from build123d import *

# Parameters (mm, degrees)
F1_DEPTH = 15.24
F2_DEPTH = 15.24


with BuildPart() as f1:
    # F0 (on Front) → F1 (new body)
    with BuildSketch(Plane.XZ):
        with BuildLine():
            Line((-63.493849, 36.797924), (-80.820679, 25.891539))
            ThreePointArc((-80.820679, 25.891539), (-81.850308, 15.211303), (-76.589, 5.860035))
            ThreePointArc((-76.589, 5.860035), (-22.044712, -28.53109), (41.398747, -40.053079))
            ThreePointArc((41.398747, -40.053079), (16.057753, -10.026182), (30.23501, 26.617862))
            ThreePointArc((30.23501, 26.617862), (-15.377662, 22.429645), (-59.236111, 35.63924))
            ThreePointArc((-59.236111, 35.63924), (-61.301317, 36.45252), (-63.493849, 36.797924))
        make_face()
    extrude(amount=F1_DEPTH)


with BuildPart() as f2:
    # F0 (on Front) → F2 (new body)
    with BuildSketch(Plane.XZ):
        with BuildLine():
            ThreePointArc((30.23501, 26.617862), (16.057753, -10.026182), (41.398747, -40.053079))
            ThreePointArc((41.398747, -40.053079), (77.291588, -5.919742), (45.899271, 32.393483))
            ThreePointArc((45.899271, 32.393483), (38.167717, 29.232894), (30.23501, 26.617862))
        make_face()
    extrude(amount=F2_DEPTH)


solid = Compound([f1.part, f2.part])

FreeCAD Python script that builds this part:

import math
import FreeCAD as App
import Part
import Sketcher

V = App.Vector
Q = App.Units.Quantity

doc = App.newDocument("Part")
body = doc.addObject("PartDesign::Body", "Body")

# Sketch on XZ plane
sketch1 = body.newObject("Sketcher::SketchObject", "Sketch")
sketch1.AttachmentSupport = (doc.getObject("XZ_Plane"), [""])
sketch1.MapMode = "FlatFace"
sketch1.addGeometry(Part.LineSegment(V(-63.5, 36.8, 0), V(-80.8, 25.9, 0)), False)
sketch1.addGeometry(Part.ArcOfCircle(Part.Circle(V(-64.3, 18.9, 0), V(0, 0, 1), 17.9), math.radians(157), math.radians(227)), False)
sketch1.addGeometry(Part.ArcOfCircle(Part.Circle(V(39.4, 129.4, 0), V(0, 0, 1), 169.4), math.radians(-133), math.radians(-89)), False)
sketch1.addGeometry(Part.ArcOfCircle(Part.Circle(V(54.1, -3.7, 0), V(0, 0, 1), 38.5), math.radians(128), math.radians(251)), False)
sketch1.addGeometry(Part.ArcOfCircle(Part.Circle(V(-3.3, 141.8, 0), V(0, 0, 1), 120), math.radians(-118), math.radians(-74)), False)
sketch1.addGeometry(Part.ArcOfCircle(Part.Circle(V(-64, 26.6, 0), V(0, 0, 1), 10.2), math.radians(62), math.radians(87)), False)
sketch1.addConstraint(Sketcher.Constraint("Coincident", 0, 2, 1, 1))
sketch1.addConstraint(Sketcher.Constraint("Tangent", 1, 2, 2, 1))
sketch1.addConstraint(Sketcher.Constraint("Coincident", 2, 2, 3, 2))
sketch1.addConstraint(Sketcher.Constraint("Coincident", 3, 1, 4, 2))
sketch1.addConstraint(Sketcher.Constraint("Tangent", 4, 1, 5, 1))
sketch1.addConstraint(Sketcher.Constraint("Coincident", 5, 2, 0, 1))
sketch1.addConstraint(Sketcher.Constraint("Radius", 5, Q("0.4000001 in")))
sketch1.addConstraint(Sketcher.Constraint("Radius", 4, 119.984769))
sketch1.addConstraint(Sketcher.Constraint("Radius", 1, 17.905374))
sketch1.addConstraint(Sketcher.Constraint("Radius", 2, 169.433345))
sketch1.addConstraint(Sketcher.Constraint("Radius", 3, 38.528604))
sketch1.addConstraint(Sketcher.Constraint("Distance", 0, 20.473599))
sketch1.addConstraint(Sketcher.Constraint("DistanceY", -1, 1, 4, 3, 141.809101))
sketch1.addConstraint(Sketcher.Constraint("DistanceX", 1, 2, -1, 1, 76.589))
sketch1.addConstraint(Sketcher.Constraint("DistanceY", 3, 3, 2, 3, 133.031801))
sketch1.addConstraint(Sketcher.Constraint("DistanceY", 0, 2, 4, 1, 9.747701))
sketch1.addConstraint(Sketcher.Constraint("DistanceX", -1, 1, 2, 3, 39.399469))
sketch1.addConstraint(Sketcher.Constraint("DistanceY", -1, 1, 2, 3, 129.36847))
sketch1.addConstraint(Sketcher.Constraint("DistanceX", 0, 2, -1, 1, 80.820679))
sketch1.addConstraint(Sketcher.Constraint("DistanceY", 2, 2, -1, 1, 40.053079))
sketch1.addConstraint(Sketcher.Constraint("DistanceX", -1, 1, 3, 1, 30.23501))
pad1 = body.newObject("PartDesign::Pad", "Pad")
pad1.Profile = sketch1
pad1.Length = Q("0.6 in")
body2 = doc.addObject("PartDesign::Body", "Body001")

# Sketch on XZ plane
sketch2 = body2.newObject("Sketcher::SketchObject", "Sketch001")
sketch2.AttachmentSupport = (doc.getObject("XZ_Plane001"), [""])
sketch2.MapMode = "FlatFace"
sketch2.addGeometry(Part.ArcOfCircle(Part.Circle(V(54, -4, 0), V(0, 0, 1), 39), math.radians(128), math.radians(251)), False)
sketch2.addGeometry(Part.ArcOfCircle(Part.Circle(V(41, -4, 0), V(0, 0, 1), 36), math.radians(-89), math.radians(82)), False)
sketch2.addGeometry(Part.ArcOfCircle(Part.Circle(V(-3, 142, 0), V(0, 0, 1), 120), math.radians(-73.75), math.radians(-65.77)), False)
sketch2.addConstraint(Sketcher.Constraint("Coincident", 0, 2, 1, 1))
sketch2.addConstraint(Sketcher.Constraint("Coincident", 1, 2, 2, 2))
sketch2.addConstraint(Sketcher.Constraint("Coincident", 2, 1, 0, 1))
sketch2.addConstraint(Sketcher.Constraint("Horizontal", 0, 3, 1, 3))
sketch2.addConstraint(Sketcher.Constraint("Radius", 1, 36.392282))
sketch2.addConstraint(Sketcher.Constraint("Radius", 2, 119.984728))
sketch2.addConstraint(Sketcher.Constraint("Radius", 0, 38.528604))
sketch2.addConstraint(Sketcher.Constraint("DistanceY", 1, 2, 2, 3, Q("4.3077 in")))
sketch2.addConstraint(Sketcher.Constraint("DistanceX", 1, 3, 0, 3, 13.088))
sketch2.addConstraint(Sketcher.Constraint("DistanceY", 2, 1, 2, 3, 115.191201))
sketch2.addConstraint(Sketcher.Constraint("DistanceY", 0, 3, -1, 1, 3.663331))
sketch2.addConstraint(Sketcher.Constraint("DistanceX", 2, 3, -1, 1, 3.34061))
pad2 = body2.newObject("PartDesign::Pad", "Pad001")
pad2.Profile = sketch2
pad2.Length = Q("0.6 in")

doc.recompute()
